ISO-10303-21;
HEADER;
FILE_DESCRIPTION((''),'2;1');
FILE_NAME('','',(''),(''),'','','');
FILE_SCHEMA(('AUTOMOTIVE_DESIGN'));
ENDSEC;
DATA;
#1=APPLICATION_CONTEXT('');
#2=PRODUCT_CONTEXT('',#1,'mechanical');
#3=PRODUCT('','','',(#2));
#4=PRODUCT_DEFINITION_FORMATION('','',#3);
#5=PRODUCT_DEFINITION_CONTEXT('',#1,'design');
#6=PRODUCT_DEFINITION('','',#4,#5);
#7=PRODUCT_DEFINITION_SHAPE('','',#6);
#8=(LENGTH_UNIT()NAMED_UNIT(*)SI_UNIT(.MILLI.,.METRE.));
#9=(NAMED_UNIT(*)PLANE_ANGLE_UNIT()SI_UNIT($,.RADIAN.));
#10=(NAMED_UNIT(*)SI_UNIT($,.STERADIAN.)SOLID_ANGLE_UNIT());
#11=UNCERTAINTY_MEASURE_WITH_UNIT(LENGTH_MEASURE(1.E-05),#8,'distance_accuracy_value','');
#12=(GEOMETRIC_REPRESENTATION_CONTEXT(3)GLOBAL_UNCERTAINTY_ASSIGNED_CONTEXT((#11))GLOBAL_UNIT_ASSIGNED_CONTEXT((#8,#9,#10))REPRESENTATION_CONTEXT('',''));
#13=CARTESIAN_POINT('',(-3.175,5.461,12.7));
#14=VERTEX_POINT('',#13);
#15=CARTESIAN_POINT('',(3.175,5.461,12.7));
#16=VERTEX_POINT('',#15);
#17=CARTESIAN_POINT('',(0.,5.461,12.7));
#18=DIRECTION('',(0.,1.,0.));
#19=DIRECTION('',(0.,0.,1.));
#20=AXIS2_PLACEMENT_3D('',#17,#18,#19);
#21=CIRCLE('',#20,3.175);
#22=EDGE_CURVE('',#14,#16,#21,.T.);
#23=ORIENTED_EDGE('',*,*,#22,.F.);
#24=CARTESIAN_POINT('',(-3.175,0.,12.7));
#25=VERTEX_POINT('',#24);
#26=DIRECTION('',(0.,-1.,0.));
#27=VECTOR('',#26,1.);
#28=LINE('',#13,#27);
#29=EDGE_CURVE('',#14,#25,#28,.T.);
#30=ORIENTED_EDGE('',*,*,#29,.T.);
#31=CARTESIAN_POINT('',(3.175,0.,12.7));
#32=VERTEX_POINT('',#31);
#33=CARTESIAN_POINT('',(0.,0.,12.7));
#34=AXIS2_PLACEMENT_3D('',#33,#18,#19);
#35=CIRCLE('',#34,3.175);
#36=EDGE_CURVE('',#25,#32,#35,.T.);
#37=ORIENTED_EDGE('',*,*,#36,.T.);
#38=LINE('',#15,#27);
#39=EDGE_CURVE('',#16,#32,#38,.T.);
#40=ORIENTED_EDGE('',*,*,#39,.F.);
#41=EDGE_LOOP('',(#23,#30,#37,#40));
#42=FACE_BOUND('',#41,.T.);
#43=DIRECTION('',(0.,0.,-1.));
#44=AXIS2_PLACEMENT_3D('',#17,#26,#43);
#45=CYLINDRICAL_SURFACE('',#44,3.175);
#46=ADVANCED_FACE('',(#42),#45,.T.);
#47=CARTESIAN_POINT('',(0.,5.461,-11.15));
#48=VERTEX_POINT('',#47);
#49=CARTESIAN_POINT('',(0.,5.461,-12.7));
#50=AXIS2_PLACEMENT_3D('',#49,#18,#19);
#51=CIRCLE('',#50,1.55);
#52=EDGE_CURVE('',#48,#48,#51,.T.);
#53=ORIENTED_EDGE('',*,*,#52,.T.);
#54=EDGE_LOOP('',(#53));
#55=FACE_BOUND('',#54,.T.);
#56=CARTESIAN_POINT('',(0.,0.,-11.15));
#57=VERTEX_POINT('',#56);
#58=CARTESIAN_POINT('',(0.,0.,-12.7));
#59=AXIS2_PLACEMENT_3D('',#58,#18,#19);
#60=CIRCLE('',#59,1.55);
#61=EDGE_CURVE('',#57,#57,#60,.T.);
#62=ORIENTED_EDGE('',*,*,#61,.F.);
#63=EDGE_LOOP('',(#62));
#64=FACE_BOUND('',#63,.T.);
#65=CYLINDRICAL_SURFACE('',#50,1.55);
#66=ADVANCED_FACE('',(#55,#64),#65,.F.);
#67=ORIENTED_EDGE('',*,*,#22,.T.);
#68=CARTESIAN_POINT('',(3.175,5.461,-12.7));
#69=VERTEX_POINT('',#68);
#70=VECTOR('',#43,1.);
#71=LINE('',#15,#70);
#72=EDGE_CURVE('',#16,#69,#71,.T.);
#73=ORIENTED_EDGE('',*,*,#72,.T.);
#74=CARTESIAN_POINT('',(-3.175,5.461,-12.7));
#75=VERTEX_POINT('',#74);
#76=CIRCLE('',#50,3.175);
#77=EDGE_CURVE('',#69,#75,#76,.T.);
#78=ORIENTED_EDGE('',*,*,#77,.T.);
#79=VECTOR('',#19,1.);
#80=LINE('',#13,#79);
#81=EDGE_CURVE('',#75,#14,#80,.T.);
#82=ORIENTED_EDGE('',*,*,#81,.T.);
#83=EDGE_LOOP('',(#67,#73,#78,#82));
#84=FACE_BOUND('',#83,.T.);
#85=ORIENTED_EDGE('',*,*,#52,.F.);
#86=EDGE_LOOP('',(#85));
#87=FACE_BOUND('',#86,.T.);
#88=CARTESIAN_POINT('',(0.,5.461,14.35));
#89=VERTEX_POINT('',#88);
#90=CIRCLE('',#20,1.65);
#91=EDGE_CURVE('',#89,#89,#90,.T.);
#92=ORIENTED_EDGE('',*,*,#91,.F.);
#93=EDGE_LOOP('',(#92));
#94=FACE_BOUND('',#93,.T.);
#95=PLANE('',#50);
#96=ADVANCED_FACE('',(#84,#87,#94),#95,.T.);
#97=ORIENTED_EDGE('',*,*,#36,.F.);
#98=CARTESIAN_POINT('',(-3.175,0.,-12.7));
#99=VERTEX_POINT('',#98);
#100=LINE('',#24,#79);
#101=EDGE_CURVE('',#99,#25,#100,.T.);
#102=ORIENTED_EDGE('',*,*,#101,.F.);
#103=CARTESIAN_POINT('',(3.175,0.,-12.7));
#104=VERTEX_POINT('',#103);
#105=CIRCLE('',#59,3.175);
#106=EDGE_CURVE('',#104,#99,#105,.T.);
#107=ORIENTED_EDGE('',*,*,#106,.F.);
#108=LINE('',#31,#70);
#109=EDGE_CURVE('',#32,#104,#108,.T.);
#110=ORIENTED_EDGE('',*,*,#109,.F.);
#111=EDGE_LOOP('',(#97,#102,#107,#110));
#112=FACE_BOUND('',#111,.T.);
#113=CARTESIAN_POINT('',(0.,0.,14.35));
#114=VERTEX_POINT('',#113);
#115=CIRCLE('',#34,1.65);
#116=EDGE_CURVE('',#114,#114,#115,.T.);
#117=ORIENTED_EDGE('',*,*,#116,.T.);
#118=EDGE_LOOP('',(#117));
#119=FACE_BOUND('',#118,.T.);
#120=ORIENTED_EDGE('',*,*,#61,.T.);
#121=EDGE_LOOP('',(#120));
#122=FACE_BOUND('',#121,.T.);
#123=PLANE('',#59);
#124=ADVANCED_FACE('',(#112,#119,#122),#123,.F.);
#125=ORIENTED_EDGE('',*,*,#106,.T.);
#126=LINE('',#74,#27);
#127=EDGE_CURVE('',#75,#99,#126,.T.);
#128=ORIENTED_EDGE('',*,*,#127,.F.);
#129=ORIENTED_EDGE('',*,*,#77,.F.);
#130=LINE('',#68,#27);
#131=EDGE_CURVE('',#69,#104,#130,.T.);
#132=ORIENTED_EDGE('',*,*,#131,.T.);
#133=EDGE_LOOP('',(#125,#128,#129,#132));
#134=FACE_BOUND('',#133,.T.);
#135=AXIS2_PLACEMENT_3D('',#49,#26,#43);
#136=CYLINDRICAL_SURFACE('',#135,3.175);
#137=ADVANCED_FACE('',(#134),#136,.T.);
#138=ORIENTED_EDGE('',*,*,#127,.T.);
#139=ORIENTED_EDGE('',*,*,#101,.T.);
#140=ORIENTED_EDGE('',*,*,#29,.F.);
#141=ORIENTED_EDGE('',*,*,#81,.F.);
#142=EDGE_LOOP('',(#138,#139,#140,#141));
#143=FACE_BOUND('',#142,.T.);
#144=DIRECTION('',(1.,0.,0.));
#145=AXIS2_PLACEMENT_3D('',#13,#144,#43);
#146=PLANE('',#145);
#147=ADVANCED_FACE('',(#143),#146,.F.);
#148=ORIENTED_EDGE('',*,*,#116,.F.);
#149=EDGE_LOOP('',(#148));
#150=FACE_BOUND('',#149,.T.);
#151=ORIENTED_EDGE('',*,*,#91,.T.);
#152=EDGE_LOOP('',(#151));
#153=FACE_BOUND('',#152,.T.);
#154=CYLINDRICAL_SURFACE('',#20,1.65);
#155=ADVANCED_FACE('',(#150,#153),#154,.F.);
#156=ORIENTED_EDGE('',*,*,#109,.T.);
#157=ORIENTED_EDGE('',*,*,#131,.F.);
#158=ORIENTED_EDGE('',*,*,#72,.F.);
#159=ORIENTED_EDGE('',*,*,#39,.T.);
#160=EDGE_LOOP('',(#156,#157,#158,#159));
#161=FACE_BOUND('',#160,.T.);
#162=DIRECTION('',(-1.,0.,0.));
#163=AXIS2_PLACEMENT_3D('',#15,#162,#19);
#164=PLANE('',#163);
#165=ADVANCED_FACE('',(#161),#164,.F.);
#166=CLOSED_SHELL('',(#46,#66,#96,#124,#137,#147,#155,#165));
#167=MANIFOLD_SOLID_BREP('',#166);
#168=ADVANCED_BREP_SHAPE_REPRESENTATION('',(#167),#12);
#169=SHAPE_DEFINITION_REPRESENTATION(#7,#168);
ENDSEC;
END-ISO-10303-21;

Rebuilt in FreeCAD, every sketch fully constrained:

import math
import FreeCAD as App
import Part
import Sketcher
Q = App.Units.Quantity

doc = App.newDocument("Part")
body = doc.addObject("PartDesign::Body", "Body")

# Sketch on XZ plane
sketch1 = body.newObject("Sketcher::SketchObject", "Sketch")
sketch1.AttachmentSupport = (doc.getObject("XZ_Plane"), [""])
sketch1.MapMode = "FlatFace"
sketch1.addGeometry([
    Part.LineSegment(App.Vector(-3.2, -12.7, 0), App.Vector(-3.2, 12.7, 0)),
    Part.ArcOfCircle(Part.Circle(App.Vector(0, 12.7, 0), App.Vector(0, 0, 1), 3.2), math.radians(0), math.radians(180)),
    Part.LineSegment(App.Vector(3.2, 12.7, 0), App.Vector(3.2, -12.7, 0)),
    Part.ArcOfCircle(Part.Circle(App.Vector(0, -12.7, 0), App.Vector(0, 0, 1), 3.2), math.radians(180), math.radians(360)),
], False)
sketch1.addConstraint([
    Sketcher.Constraint("Tangent", 0, 2, 1, 2),
    Sketcher.Constraint("Tangent", 1, 1, 2, 1),
    Sketcher.Constraint("Tangent", 2, 2, 3, 2),
    Sketcher.Constraint("Tangent", 3, 1, 0, 1),
    Sketcher.Constraint("Vertical", 0),
    Sketcher.Constraint("Vertical", 2),
    Sketcher.Constraint("Symmetric", 1, 3, 3, 3, -1, 1),
    Sketcher.Constraint("DistanceY", 0, 1, 0, 2, Q("1 in")),
    Sketcher.Constraint("Radius", 1, Q("0.125 in")),
])
pad1 = body.newObject("PartDesign::Pad", "Pad")
pad1.Profile = sketch1
pad1.Length = Q("0.215 in")
pad1.Reversed = True

# Sketch on XZ plane
sketch2 = body.newObject("Sketcher::SketchObject", "Sketch001")
sketch2.AttachmentSupport = (doc.getObject("XZ_Plane"), [""])
sketch2.MapMode = "FlatFace"
sketch2.AttachmentOffset = App.Placement(App.Vector(0, 0, -0.215 * 25.4), App.Rotation())
sketch2.addGeometry(Part.Circle(App.Vector(0, 12.7, 0), App.Vector(0, 0, 1), 1.6), False)
sketch2.addConstraint([
    Sketcher.Constraint("PointOnObject", 0, 3, -2),
    Sketcher.Constraint("DistanceY", -1, 1, 0, 3, Q("0.5 in")),
    Sketcher.Constraint("Diameter", 0, 3.3),
])
doc.recompute()
hole = body.newObject("PartDesign::Hole", "Hole")
hole.Profile = sketch2
hole.ThreadType = "None"
hole.Diameter = 3.3
hole.DepthType = "ThroughAll"
hole.Reversed = True

# Sketch on XZ plane
sketch3 = body.newObject("Sketcher::SketchObject", "Sketch002")
sketch3.AttachmentSupport = (doc.getObject("XZ_Plane"), [""])
sketch3.MapMode = "FlatFace"
sketch3.AttachmentOffset = App.Placement(App.Vector(0, 0, -0.215 * 25.4), App.Rotation())
sketch3.addGeometry(Part.Circle(App.Vector(0, -12.7, 0), App.Vector(0, 0, 1), 1.6), False)
sketch3.addConstraint([
    Sketcher.Constraint("PointOnObject", 0, 3, -2),
    Sketcher.Constraint("DistanceY", 0, 3, -1, 1, Q("0.5 in")),
    Sketcher.Constraint("Diameter", 0, 3.1),
])
doc.recompute()
hole2 = body.newObject("PartDesign::Hole", "Hole001")
hole2.Profile = sketch3
hole2.ThreadType = "None"
hole2.Diameter = 3.1
hole2.DepthType = "ThroughAll"
hole2.Reversed = True

doc.recompute()
